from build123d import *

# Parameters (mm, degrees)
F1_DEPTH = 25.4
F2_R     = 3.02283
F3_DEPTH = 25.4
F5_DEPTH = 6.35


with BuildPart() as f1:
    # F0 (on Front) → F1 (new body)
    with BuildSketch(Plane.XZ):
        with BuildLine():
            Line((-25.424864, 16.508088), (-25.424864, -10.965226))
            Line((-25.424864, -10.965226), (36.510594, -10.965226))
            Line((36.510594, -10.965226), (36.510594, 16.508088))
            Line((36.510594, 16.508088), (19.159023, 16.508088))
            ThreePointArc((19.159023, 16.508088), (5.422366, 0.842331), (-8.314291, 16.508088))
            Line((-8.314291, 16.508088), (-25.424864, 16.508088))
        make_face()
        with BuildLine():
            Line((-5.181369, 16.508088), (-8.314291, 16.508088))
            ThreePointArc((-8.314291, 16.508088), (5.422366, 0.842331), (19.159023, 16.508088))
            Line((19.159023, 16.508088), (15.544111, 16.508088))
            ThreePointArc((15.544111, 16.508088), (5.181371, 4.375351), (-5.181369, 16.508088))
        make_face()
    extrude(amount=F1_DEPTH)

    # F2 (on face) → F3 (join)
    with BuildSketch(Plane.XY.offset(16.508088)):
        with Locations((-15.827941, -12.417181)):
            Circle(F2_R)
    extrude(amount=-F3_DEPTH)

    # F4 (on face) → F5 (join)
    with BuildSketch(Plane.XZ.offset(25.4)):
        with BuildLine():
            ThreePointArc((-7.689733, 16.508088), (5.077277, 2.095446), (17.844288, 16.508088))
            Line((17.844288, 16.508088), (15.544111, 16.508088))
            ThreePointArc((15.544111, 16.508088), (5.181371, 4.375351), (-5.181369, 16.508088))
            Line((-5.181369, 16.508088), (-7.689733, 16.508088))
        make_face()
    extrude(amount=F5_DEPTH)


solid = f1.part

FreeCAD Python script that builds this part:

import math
import FreeCAD as App
import Part
import Sketcher
Q = App.Units.Quantity

doc = App.newDocument("Part")
body = doc.addObject("PartDesign::Body", "Body")

# Sketch on XZ plane
sketch1 = body.newObject("Sketcher::SketchObject", "Sketch")
sketch1.AttachmentSupport = (doc.getObject("XZ_Plane"), [""])
sketch1.MapMode = "FlatFace"
sketch1.addGeometry([
    Part.LineSegment(App.Vector(-25, 17, 0), App.Vector(-25, -11, 0)),  # 0
    Part.LineSegment(App.Vector(-25, -11, 0), App.Vector(37, -11, 0)),  # 1
    Part.LineSegment(App.Vector(37, -11, 0), App.Vector(37, 17, 0)),  # 2
    Part.LineSegment(App.Vector(37, 17, 0), App.Vector(16, 17, 0)),  # 3
    Part.ArcOfCircle(Part.Circle(App.Vector(5, 15, 0), App.Vector(0, 0, 1), 10), math.radians(171), math.radians(369)),  # 4
    Part.LineSegment(App.Vector(-5, 17, 0), App.Vector(-25, 17, 0)),  # 5
], False)
sketch1.addConstraint([
    Sketcher.Constraint("Coincident", 0, 2, 1, 1),
    Sketcher.Constraint("Coincident", 1, 2, 2, 1),
    Sketcher.Constraint("Coincident", 2, 2, 3, 1),
    Sketcher.Constraint("Coincident", 3, 2, 4, 2),
    Sketcher.Constraint("Coincident", 4, 1, 5, 1),
    Sketcher.Constraint("Coincident", 5, 2, 0, 1),
    Sketcher.Constraint("Vertical", 0),
    Sketcher.Constraint("Horizontal", 1),
    Sketcher.Constraint("Vertical", 2),
    Sketcher.Constraint("Horizontal", 3),
    Sketcher.Constraint("Horizontal", 5),
    Sketcher.Constraint("Horizontal", 3, 2, 4, 1),
    Sketcher.Constraint("Radius", 4, Q("10.491849 mm")),
    Sketcher.Constraint("DistanceY", -1, 1, 4, 3, Q("14.8672 mm")),
    Sketcher.Constraint("DistanceX", 1, 1, 1, 2, Q("61.935458 mm")),
    Sketcher.Constraint("DistanceX", 3, 2, 3, 1, Q("20.966483 mm")),
    Sketcher.Constraint("DistanceX", 5, 2, 5, 1, Q("20.243495 mm")),
    Sketcher.Constraint("DistanceY", 0, 2, 0, 1, Q("27.473314 mm")),
    Sketcher.Constraint("DistanceX", -1, 1, 4, 3, Q("5.181371 mm")),
])
pad1 = body.newObject("PartDesign::Pad", "Pad")
pad1.Profile = sketch1
pad1.Length = Q("1 in")

# Sketch on XY plane
sketch2 = body.newObject("Sketcher::SketchObject", "Sketch001")
sketch2.AttachmentSupport = (doc.getObject("XY_Plane"), [""])
sketch2.MapMode = "FlatFace"
sketch2.AttachmentOffset = App.Placement(App.Vector(0, 0, 16.508088), App.Rotation())
sketch2.addGeometry(Part.Circle(App.Vector(-15.8, -12.4, 0), App.Vector(0, 0, 1), 3), False)
sketch2.addConstraint([
    Sketcher.Constraint("Diameter", 0, Q("6.04566 mm")),
    Sketcher.Constraint("DistanceX", 0, 3, -1, 1, Q("15.827941 mm")),
    Sketcher.Constraint("DistanceY", 0, 3, -1, 1, Q("12.417181 mm")),
])
pad2 = body.newObject("PartDesign::Pad", "Pad001")
pad2.Profile = sketch2
pad2.Length = Q("1 in")
pad2.Reversed = True

# Sketch on XZ plane
sketch3 = body.newObject("Sketcher::SketchObject", "Sketch002")
sketch3.AttachmentSupport = (doc.getObject("XZ_Plane"), [""])
sketch3.MapMode = "FlatFace"
sketch3.AttachmentOffset = App.Placement(App.Vector(0, 0, 1 * 25.4), App.Rotation())
sketch3.addGeometry([
    Part.ArcOfCircle(Part.Circle(App.Vector(5.1, 15, 0), App.Vector(0, 0, 1), 12.9), math.radians(173), math.radians(367)),
    Part.LineSegment(App.Vector(17.8, 16.5, 0), App.Vector(15.5, 16.5, 0)),
    Part.ArcOfCircle(Part.Circle(App.Vector(5.2, 14.9, 0), App.Vector(0, 0, 1), 10.5), math.radians(171), math.radians(369)),
    Part.LineSegment(App.Vector(-5.2, 16.5, 0), App.Vector(-7.7, 16.5, 0)),
], False)
sketch3.addConstraint([
    Sketcher.Constraint("Coincident", 0, 2, 1, 1),
    Sketcher.Constraint("Coincident", 1, 2, 2, 2),
    Sketcher.Constraint("Coincident", 2, 1, 3, 1),
    Sketcher.Constraint("Coincident", 3, 2, 0, 1),
    Sketcher.Constraint("Horizontal", 1),
    Sketcher.Constraint("Horizontal", 3),
    Sketcher.Constraint("Horizontal", 1, 2, 2, 1),
    Sketcher.Constraint("Radius", 0, Q("12.860959 mm")),
    Sketcher.Constraint("Radius", 2, Q("10.491849 mm")),
    Sketcher.Constraint("DistanceY", -1, 1, 2, 3, Q("14.8672 mm")),
    Sketcher.Constraint("DistanceX", 1, 2, 1, 1, Q("2.300177 mm")),
    Sketcher.Constraint("DistanceX", 3, 2, 3, 1, Q("2.508364 mm")),
    Sketcher.Constraint("DistanceX", -1, 1, 2, 3, Q("5.181371 mm")),
    Sketcher.Constraint("DistanceX", -1, 1, 1, 2, Q("15.544111 mm")),
])
pad3 = body.newObject("PartDesign::Pad", "Pad002")
pad3.Profile = sketch3
pad3.Length = Q("0.25 in")

doc.recompute()
